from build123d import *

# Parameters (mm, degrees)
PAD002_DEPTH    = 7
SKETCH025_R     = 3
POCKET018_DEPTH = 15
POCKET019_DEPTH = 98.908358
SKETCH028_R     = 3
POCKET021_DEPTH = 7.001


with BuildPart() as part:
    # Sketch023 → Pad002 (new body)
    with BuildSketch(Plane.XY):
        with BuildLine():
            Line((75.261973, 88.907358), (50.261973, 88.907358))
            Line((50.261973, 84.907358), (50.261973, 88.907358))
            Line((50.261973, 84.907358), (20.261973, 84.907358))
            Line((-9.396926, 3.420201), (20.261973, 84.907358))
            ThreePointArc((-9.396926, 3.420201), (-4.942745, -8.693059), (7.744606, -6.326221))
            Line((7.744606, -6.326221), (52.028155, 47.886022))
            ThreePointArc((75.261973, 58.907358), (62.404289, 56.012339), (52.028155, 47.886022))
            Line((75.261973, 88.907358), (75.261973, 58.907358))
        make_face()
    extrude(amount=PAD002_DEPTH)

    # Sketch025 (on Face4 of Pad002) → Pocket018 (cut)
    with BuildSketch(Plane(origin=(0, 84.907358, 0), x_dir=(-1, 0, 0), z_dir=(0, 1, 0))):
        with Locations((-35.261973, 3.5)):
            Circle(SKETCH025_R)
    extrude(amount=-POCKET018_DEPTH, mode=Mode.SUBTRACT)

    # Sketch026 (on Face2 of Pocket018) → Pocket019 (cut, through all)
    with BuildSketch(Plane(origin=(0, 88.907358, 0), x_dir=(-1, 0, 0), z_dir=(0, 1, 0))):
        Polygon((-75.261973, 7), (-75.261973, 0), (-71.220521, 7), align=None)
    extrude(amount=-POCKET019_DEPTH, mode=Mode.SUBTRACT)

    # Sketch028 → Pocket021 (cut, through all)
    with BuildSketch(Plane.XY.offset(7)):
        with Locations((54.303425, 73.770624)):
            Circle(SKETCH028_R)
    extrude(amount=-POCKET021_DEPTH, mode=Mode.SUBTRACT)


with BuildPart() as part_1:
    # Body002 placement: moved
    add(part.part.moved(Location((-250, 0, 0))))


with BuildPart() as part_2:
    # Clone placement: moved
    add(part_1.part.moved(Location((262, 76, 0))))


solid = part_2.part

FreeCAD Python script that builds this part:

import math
import FreeCAD as App
import Part
import Sketcher
from FreeCAD import Vector
Q = App.Units.Quantity


def add_polygon(sketch, points):
    """Adds a closed chain of lines whose ends are joined by coincident constraints."""
    first, n = sketch.GeometryCount, len(points)
    for a, b in zip(points, points[1:] + points[:1]):
        sketch.addGeometry(Part.LineSegment(App.Vector(*a, 0), App.Vector(*b, 0)), False)
    for i in range(n):
        sketch.addConstraint(Sketcher.Constraint("Coincident", first + i, 2, first + (i + 1) % n, 1))

doc = App.newDocument("Part")
params = doc.addObject("Spreadsheet::Sheet", "Params")
for row, (alias, value) in enumerate([
    ("sketch1_radius", "10 mm"),
    ("sketch1_width", "25 mm"),
    ("sketch1_width2", "30 mm"),
    ("sketch1_height", "4 mm"),
    ("sketch1_length", "70 mm"),
    ("pad1_length", "7 mm"),
    ("sketch2_diameter", "6 mm"),
    ("pocket1_length", "15 mm"),
    ("sketch3_height", "7 mm"),
    ("sketch4_diameter", "6 mm"),
], start=1):
    params.set(f"A{row}", alias)
    params.set(f"B{row}", "=" + value)
    params.setAlias(f"B{row}", alias)

body = doc.addObject("PartDesign::Body", "Body")

# Sketch on XY plane
sketch1 = body.newObject("Sketcher::SketchObject", "Sketch")
sketch1.AttachmentSupport = (doc.getObject("XY_Plane"), [""])
sketch1.MapMode = "FlatFace"
sketch1.addGeometry(Part.LineSegment(Vector(75.261973, 88.907358, 0), Vector(50.261973, 88.907358, 0)), False)
sketch1.addGeometry(Part.LineSegment(Vector(50.261973, 88.907358, 0), Vector(50.261973, 84.907358, 0)), False)
sketch1.addGeometry(Part.LineSegment(Vector(50.261973, 84.907358, 0), Vector(20.261973, 84.907358, 0)), False)
sketch1.addGeometry(Part.LineSegment(Vector(20.261973, 84.907358, 0), Vector(-9.396926, 3.420201, 0)), False)
sketch1.addGeometry(Part.ArcOfCircle(Part.Circle(Vector(0, 0, 0), Vector(0, 0, 1), 10), math.radians(159.999999), math.radians(320.756159)), False)
sketch1.addGeometry(Part.LineSegment(Vector(7.744606, -6.326221, 0), Vector(52.028155, 47.886022, 0)), False)
sketch1.addGeometry(Part.ArcOfCircle(Part.Circle(Vector(75.26197, 28.907364, 0), Vector(0, 0, 1), 29.999994), math.radians(89.999995), math.radians(140.756161)), False)
sketch1.addGeometry(Part.LineSegment(Vector(75.261973, 58.907358, 0), Vector(75.261973, 88.907358, 0)), False)
sketch1.addConstraint(Sketcher.Constraint("Coincident", 0, 2, 1, 1))
sketch1.addConstraint(Sketcher.Constraint("Coincident", 1, 2, 2, 1))
sketch1.addConstraint(Sketcher.Constraint("Coincident", 2, 2, 3, 1))
sketch1.addConstraint(Sketcher.Constraint("Tangent", 3, 2, 4, 1))
sketch1.addConstraint(Sketcher.Constraint("Tangent", 4, 2, 5, 1))
sketch1.addConstraint(Sketcher.Constraint("Tangent", 5, 2, 6, 2))
sketch1.addConstraint(Sketcher.Constraint("Coincident", 6, 1, 7, 1))
sketch1.addConstraint(Sketcher.Constraint("Coincident", 7, 2, 0, 1))
sketch1.addConstraint(Sketcher.Constraint("Horizontal", 0))
sketch1.addConstraint(Sketcher.Constraint("Vertical", 1))
sketch1.addConstraint(Sketcher.Constraint("Horizontal", 2))
sketch1.addConstraint(Sketcher.Constraint("Vertical", 7))
sketch1.addConstraint(Sketcher.Constraint("Coincident", 4, 3, -1, 1))
sketch1.addConstraint(Sketcher.Constraint("Equal", 2, 7))
sketch1.addConstraint(Sketcher.Constraint("Radius", 4, 10.0))
sketch1.addConstraint(Sketcher.Constraint("DistanceX", 0, 2, 0, 1, 25.0))
sketch1.addConstraint(Sketcher.Constraint("DistanceX", 2, 2, 2, 1, 30.0))
sketch1.addConstraint(Sketcher.Constraint("DistanceY", 1, 2, 1, 1, 4.0))
sketch1.addConstraint(Sketcher.Constraint("Angle", 3, Q("-110 deg")))
sketch1.addConstraint(Sketcher.Constraint("Distance", 5, 70.0))
sketch1.addConstraint(Sketcher.Constraint("Radius", 6, 29.999994))
sketch1.addConstraint(Sketcher.Constraint("DistanceX", 3, 2, 2, 2, 29.658899))
sketch1.setExpression("Constraints[14]", "Params.sketch1_radius")
sketch1.setExpression("Constraints[15]", "Params.sketch1_width")
sketch1.setExpression("Constraints[16]", "Params.sketch1_width2")
sketch1.setExpression("Constraints[17]", "Params.sketch1_height")
sketch1.setExpression("Constraints[19]", "Params.sketch1_length")
pad1 = body.newObject("PartDesign::Pad", "Pad")
pad1.Profile = sketch1
pad1.setExpression("Length", "Params.pad1_length")

# Sketch on XZ plane
sketch2 = body.newObject("Sketcher::SketchObject", "Sketch001")
sketch2.AttachmentSupport = (doc.getObject("XZ_Plane"), [""])
sketch2.MapMode = "FlatFace"
sketch2.AttachmentOffset = App.Placement(Vector(0, 0, -84.907358), App.Rotation())
sketch2.addGeometry(Part.Circle(Vector(35.261973, 3.5, 0), Vector(0, 0, 1), 3), False)
sketch2.addConstraint(Sketcher.Constraint("Diameter", 0, 6.0))
sketch2.addConstraint(Sketcher.Constraint("DistanceY", -1, 1, 0, 3, 3.5))
sketch2.addConstraint(Sketcher.Constraint("DistanceX", -1, 1, 0, 3, 35.261973))
sketch2.setExpression("Constraints[0]", "Params.sketch2_diameter")
pocket1 = body.newObject("PartDesign::Pocket", "Pocket")
pocket1.Profile = sketch2
pocket1.setExpression("Length", "Params.pocket1_length")
pocket1.Reversed = True

# Sketch on XZ plane
sketch3 = body.newObject("Sketcher::SketchObject", "Sketch002")
sketch3.AttachmentSupport = (doc.getObject("XZ_Plane"), [""])
sketch3.MapMode = "FlatFace"
sketch3.AttachmentOffset = App.Placement(Vector(0, 0, -88.907358), App.Rotation())
add_polygon(sketch3, [(75.261973, 7), (75.261973, 0), (71.220521, 7)])  # lines 0-2
sketch3.addConstraint(Sketcher.Constraint("Vertical", 0))
sketch3.addConstraint(Sketcher.Constraint("Horizontal", 2))
sketch3.addConstraint(Sketcher.Constraint("PointOnObject", 0, 2, -1))
sketch3.addConstraint(Sketcher.Constraint("DistanceY", 0, 2, 0, 1, 7.0))
sketch3.addConstraint(Sketcher.Constraint("Angle", 1, Q("120.000001 deg")))
sketch3.addConstraint(Sketcher.Constraint("DistanceX", -1, 1, 1, 2, 71.220521))
sketch3.setExpression("Constraints[6]", "Params.sketch3_height")
pocket2 = body.newObject("PartDesign::Pocket", "Pocket001")
pocket2.Profile = sketch3
pocket2.Type = "ThroughAll"
pocket2.Reversed = True

# Sketch on XY plane
sketch4 = body.newObject("Sketcher::SketchObject", "Sketch003")
sketch4.AttachmentSupport = (doc.getObject("XY_Plane"), [""])
sketch4.MapMode = "FlatFace"
sketch4.AttachmentOffset = App.Placement(Vector(0, 0, 7), App.Rotation())
sketch4.addGeometry(Part.Circle(Vector(54.303425, 73.770624, 0), Vector(0, 0, 1), 3), False)
sketch4.addConstraint(Sketcher.Constraint("Diameter", 0, 6.0))
sketch4.addConstraint(Sketcher.Constraint("DistanceX", -1, 1, 0, 3, 54.303425))
sketch4.addConstraint(Sketcher.Constraint("DistanceY", -1, 1, 0, 3, 73.770624))
sketch4.setExpression("Constraints[0]", "Params.sketch4_diameter")
pocket3 = body.newObject("PartDesign::Pocket", "Pocket002")
pocket3.Profile = sketch4
pocket3.Type = "ThroughAll"
body2 = doc.addObject("PartDesign::Body", "Body001")
doc.recompute()

body.Placement = App.Placement(Vector(-250, 0, 0), App.Rotation(Vector(0, 0, 1), 0))
boolean = body2.newObject("PartDesign::Boolean", "Boolean")
boolean.Type = "Fuse"
boolean.addObjects([body])
body3 = doc.addObject("PartDesign::Body", "Body002")
doc.recompute()

body2.Placement = App.Placement(Vector(262, 76, 0), App.Rotation(Vector(0, 0, 1), 0))
boolean2 = body3.newObject("PartDesign::Boolean", "Boolean001")
boolean2.Type = "Fuse"
boolean2.addObjects([body2])

doc.recompute()
